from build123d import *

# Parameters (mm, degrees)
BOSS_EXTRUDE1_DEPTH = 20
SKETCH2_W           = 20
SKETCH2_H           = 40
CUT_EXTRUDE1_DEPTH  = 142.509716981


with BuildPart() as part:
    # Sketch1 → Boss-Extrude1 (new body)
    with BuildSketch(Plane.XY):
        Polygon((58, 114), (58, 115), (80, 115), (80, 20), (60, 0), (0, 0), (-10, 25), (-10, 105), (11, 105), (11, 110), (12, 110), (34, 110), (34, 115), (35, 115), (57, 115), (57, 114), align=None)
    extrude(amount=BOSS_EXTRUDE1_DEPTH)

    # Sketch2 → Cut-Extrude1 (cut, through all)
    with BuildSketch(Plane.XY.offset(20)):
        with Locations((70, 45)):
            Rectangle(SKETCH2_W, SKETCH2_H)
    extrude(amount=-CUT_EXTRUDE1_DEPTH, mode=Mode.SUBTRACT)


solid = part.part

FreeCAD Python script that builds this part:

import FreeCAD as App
import Part
import Sketcher
Q = App.Units.Quantity


def add_polygon(sketch, points):
    """Adds a closed chain of lines whose ends are joined by coincident constraints."""
    first, n = sketch.GeometryCount, len(points)
    for a, b in zip(points, points[1:] + points[:1]):
        sketch.addGeometry(Part.LineSegment(App.Vector(*a, 0), App.Vector(*b, 0)), False)
    for i in range(n):
        sketch.addConstraint(Sketcher.Constraint("Coincident", first + i, 2, first + (i + 1) % n, 1))

doc = App.newDocument("Part")
body = doc.addObject("PartDesign::Body", "Body")

sketch1 = doc.addObject("Sketcher::SketchObject", "Sketch")
body.addObject(sketch1)
sketch1.AttachmentSupport = (doc.XY_Plane, [""])
sketch1.MapMode = "FlatFace"
add_polygon(sketch1, [(58, 115), (58, 114), (57, 114), (57, 115), (34, 115), (34, 110), (11, 110), (11, 105), (-10, 105), (-10, 25), (0, 0), (60, 0), (80, 20), (80, 115)])
sketch1.addConstraint([
    Sketcher.Constraint("Vertical", 0),
    Sketcher.Constraint("Horizontal", 1),
    Sketcher.Constraint("Vertical", 2),
    Sketcher.Constraint("Horizontal", 3),
    Sketcher.Constraint("Vertical", 4),
    Sketcher.Constraint("Horizontal", 5),
    Sketcher.Constraint("Vertical", 6),
    Sketcher.Constraint("Horizontal", 7),
    Sketcher.Constraint("Vertical", 8),
    Sketcher.Constraint("Horizontal", 10),
    Sketcher.Constraint("Vertical", 12),
    Sketcher.Constraint("Horizontal", 13),
    Sketcher.Constraint("Coincident", 9, 2, -1, 1),
    Sketcher.Constraint("Horizontal", 3, 2, 12, 2),
    Sketcher.Constraint("Equal", 3, 5),
    Sketcher.Constraint("Equal", 1, 0),
    Sketcher.Constraint("Equal", 4, 6),
    Sketcher.Constraint("DistanceX", 1, 2, 1, 1, 1.0),
    Sketcher.Constraint("DistanceX", 3, 2, 3, 1, 23.0),
    Sketcher.Constraint("DistanceX", 7, 2, 7, 1, 21.0),
    Sketcher.Constraint("DistanceX", 10, 1, 10, 2, 60.0),
    Sketcher.Constraint("DistanceX", 13, 2, 13, 1, 22.0),
    Sketcher.Constraint("DistanceY", 4, 2, 4, 1, 5.0),
    Sketcher.Constraint("DistanceY", 8, 2, 8, 1, 80.0),
    Sketcher.Constraint("DistanceY", 12, 1, 12, 2, 95.0),
    Sketcher.Constraint("Angle", 11, Q("45 deg")),
    Sketcher.Constraint("DistanceX", -1, 1, 0, 2, 58.0),
])
pad1 = doc.addObject("PartDesign::Pad", "Pad")
body.addObject(pad1)
pad1.Profile = sketch1
pad1.Length = 20

sketch2 = doc.addObject("Sketcher::SketchObject", "Sketch001")
body.addObject(sketch2)
sketch2.AttachmentSupport = (doc.XY_Plane, [""])
sketch2.MapMode = "FlatFace"
sketch2.AttachmentOffset = App.Placement(App.Vector(0, 0, 20), App.Rotation())
add_polygon(sketch2, [(60, 65), (60, 25), (80, 25), (80, 65)])
sketch2.addConstraint([
    Sketcher.Constraint("Vertical", 0),
    Sketcher.Constraint("Horizontal", 1),
    Sketcher.Constraint("Vertical", 2),
    Sketcher.Constraint("Horizontal", 3),
    Sketcher.Constraint("DistanceX", 1, 1, 1, 2, 20.0),
    Sketcher.Constraint("DistanceY", 0, 2, 0, 1, 40.0),
    Sketcher.Constraint("DistanceX", -1, 1, 0, 2, 60.0),
    Sketcher.Constraint("DistanceY", -1, 1, 0, 2, 25.0),
])
pocket1 = doc.addObject("PartDesign::Pocket", "Pocket")
body.addObject(pocket1)
pocket1.Profile = sketch2
pocket1.Type = "ThroughAll"

doc.recompute()
